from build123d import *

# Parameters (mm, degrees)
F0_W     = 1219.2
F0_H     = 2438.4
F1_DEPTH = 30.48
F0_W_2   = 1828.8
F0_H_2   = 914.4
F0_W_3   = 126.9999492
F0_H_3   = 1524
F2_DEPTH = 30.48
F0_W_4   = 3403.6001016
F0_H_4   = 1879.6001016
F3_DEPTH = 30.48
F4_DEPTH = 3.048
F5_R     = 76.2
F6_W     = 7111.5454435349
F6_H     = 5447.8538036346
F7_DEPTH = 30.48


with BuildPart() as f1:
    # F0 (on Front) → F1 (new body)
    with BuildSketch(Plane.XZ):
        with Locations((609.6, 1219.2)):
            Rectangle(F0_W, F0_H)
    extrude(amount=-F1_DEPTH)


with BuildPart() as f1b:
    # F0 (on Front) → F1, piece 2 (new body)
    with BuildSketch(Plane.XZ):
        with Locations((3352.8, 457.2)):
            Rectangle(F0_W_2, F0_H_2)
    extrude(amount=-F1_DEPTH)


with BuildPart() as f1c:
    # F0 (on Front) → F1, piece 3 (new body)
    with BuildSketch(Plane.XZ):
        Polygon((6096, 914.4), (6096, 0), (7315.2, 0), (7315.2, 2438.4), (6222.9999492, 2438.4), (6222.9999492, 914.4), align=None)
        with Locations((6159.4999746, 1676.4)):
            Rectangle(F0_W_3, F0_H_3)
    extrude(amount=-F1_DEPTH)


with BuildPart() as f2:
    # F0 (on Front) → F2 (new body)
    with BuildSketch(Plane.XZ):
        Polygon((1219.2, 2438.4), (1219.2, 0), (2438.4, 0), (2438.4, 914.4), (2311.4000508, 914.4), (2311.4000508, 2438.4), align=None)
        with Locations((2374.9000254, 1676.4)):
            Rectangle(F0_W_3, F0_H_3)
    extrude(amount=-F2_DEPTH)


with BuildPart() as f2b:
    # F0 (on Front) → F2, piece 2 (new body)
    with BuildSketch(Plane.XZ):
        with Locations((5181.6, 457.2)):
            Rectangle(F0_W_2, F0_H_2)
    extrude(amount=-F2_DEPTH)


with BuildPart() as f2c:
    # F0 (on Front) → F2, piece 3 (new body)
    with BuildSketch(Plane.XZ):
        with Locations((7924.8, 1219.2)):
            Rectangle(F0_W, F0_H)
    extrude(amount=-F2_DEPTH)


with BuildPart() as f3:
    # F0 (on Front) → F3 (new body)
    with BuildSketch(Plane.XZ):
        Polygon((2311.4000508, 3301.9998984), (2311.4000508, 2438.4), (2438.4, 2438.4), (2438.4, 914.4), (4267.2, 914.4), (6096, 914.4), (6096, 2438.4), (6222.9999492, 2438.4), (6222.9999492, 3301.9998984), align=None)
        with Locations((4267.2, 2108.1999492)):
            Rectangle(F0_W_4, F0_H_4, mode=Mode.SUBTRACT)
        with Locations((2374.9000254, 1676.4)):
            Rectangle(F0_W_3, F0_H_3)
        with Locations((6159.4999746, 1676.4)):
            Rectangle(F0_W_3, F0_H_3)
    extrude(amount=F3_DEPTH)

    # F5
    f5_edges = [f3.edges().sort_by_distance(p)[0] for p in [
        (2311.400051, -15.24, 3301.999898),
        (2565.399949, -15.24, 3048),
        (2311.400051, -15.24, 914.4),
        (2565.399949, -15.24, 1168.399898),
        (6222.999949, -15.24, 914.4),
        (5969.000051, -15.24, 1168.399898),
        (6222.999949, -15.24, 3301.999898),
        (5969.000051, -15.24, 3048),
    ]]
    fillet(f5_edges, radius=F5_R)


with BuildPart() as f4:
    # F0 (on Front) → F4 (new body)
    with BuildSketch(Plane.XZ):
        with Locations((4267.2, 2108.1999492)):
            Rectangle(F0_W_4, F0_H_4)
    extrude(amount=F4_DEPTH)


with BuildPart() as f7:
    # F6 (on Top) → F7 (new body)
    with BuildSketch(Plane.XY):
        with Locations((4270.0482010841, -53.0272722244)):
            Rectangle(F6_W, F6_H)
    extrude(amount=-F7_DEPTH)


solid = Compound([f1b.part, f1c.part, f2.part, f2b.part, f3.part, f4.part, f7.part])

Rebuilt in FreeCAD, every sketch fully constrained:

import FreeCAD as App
import Part
import Sketcher
Q = App.Units.Quantity


def edges_at(feature, points):
    """Names of the edges that pass closest to the given points."""
    edges = feature.Shape.Edges
    near = lambda p: min(range(len(edges)), key=lambda i: edges[i].distToShape(Part.Vertex(*p))[0])
    return sorted({f"Edge{near(p) + 1}" for p in points})

doc = App.newDocument("Part")
body = doc.addObject("PartDesign::Body", "Body")

# Sketch on XZ plane
sketch1 = doc.addObject("Sketcher::SketchObject", "Sketch")
body.addObject(sketch1)
sketch1.AttachmentSupport = (doc.XZ_Plane, [""])
sketch1.MapMode = "FlatFace"
sketch1.addGeometry(Part.LineSegment(App.Vector(0, 2438, 0), App.Vector(0, 0, 0)), False)
sketch1.addGeometry(Part.LineSegment(App.Vector(0, 0, 0), App.Vector(1219, 0, 0)), False)
sketch1.addGeometry(Part.LineSegment(App.Vector(1219, 0, 0), App.Vector(1219, 2438, 0)), False)
sketch1.addGeometry(Part.LineSegment(App.Vector(1219, 2438, 0), App.Vector(0, 2438, 0)), False)
sketch1.addConstraint(Sketcher.Constraint("Coincident", 0, 2, 1, 1))
sketch1.addConstraint(Sketcher.Constraint("Coincident", 1, 2, 2, 1))
sketch1.addConstraint(Sketcher.Constraint("Coincident", 2, 2, 3, 1))
sketch1.addConstraint(Sketcher.Constraint("Coincident", 3, 2, 0, 1))
sketch1.addConstraint(Sketcher.Constraint("Vertical", 0))
sketch1.addConstraint(Sketcher.Constraint("Horizontal", 1))
sketch1.addConstraint(Sketcher.Constraint("Vertical", 2))
sketch1.addConstraint(Sketcher.Constraint("Horizontal", 3))
sketch1.addConstraint(Sketcher.Constraint("Coincident", 0, 2, -1, 1))
sketch1.addConstraint(Sketcher.Constraint("DistanceX", 1, 1, 1, 2, Q("48 in")))
sketch1.addConstraint(Sketcher.Constraint("DistanceY", 0, 2, 0, 1, Q("96 in")))
pad1 = doc.addObject("PartDesign::Pad", "Pad")
body.addObject(pad1)
pad1.Profile = sketch1
pad1.Length = Q("1.2 in")
pad1.Reversed = True
body2 = doc.addObject("PartDesign::Body", "Body001")

# Sketch on XZ plane
sketch2 = doc.addObject("Sketcher::SketchObject", "Sketch001")
body2.addObject(sketch2)
sketch2.AttachmentSupport = (doc.getObject("XZ_Plane001"), [""])
sketch2.MapMode = "FlatFace"
sketch2.addGeometry(Part.LineSegment(App.Vector(2438, 914, 0), App.Vector(2438, 0, 0)), False)
sketch2.addGeometry(Part.LineSegment(App.Vector(2438, 0, 0), App.Vector(4267, 0, 0)), False)
sketch2.addGeometry(Part.LineSegment(App.Vector(4267, 0, 0), App.Vector(4267, 914, 0)), False)
sketch2.addGeometry(Part.LineSegment(App.Vector(4267, 914, 0), App.Vector(2438, 914, 0)), False)
sketch2.addConstraint(Sketcher.Constraint("Coincident", 0, 2, 1, 1))
sketch2.addConstraint(Sketcher.Constraint("Coincident", 1, 2, 2, 1))
sketch2.addConstraint(Sketcher.Constraint("Coincident", 2, 2, 3, 1))
sketch2.addConstraint(Sketcher.Constraint("Coincident", 3, 2, 0, 1))
sketch2.addConstraint(Sketcher.Constraint("Vertical", 0))
sketch2.addConstraint(Sketcher.Constraint("Horizontal", 1))
sketch2.addConstraint(Sketcher.Constraint("Vertical", 2))
sketch2.addConstraint(Sketcher.Constraint("Horizontal", 3))
sketch2.addConstraint(Sketcher.Constraint("PointOnObject", 0, 2, -1))
sketch2.addConstraint(Sketcher.Constraint("DistanceX", 1, 1, 1, 2, Q("72 in")))
sketch2.addConstraint(Sketcher.Constraint("DistanceY", 0, 2, 0, 1, Q("36 in")))
sketch2.addConstraint(Sketcher.Constraint("DistanceX", -1, 1, 0, 2, Q("96 in")))
pad2 = doc.addObject("PartDesign::Pad", "Pad001")
body2.addObject(pad2)
pad2.Profile = sketch2
pad2.Length = Q("1.2 in")
pad2.Reversed = True
body3 = doc.addObject("PartDesign::Body", "Body002")

# Sketch on XZ plane
sketch3 = doc.addObject("Sketcher::SketchObject", "Sketch002")
body3.addObject(sketch3)
sketch3.AttachmentSupport = (doc.getObject("XZ_Plane002"), [""])
sketch3.MapMode = "FlatFace"
sketch3.addGeometry(Part.LineSegment(App.Vector(6096, 0, 0), App.Vector(7315, 0, 0)), False)
sketch3.addGeometry(Part.LineSegment(App.Vector(7315, 0, 0), App.Vector(7315, 2438, 0)), False)
sketch3.addGeometry(Part.LineSegment(App.Vector(7315, 2438, 0), App.Vector(6096, 2438, 0)), False)
sketch3.addGeometry(Part.LineSegment(App.Vector(6096, 2438, 0), App.Vector(6096, 0, 0)), False)
sketch3.addConstraint(Sketcher.Constraint("Coincident", 0, 2, 1, 1))
sketch3.addConstraint(Sketcher.Constraint("Coincident", 1, 2, 2, 1))
sketch3.addConstraint(Sketcher.Constraint("Coincident", 2, 2, 3, 1))
sketch3.addConstraint(Sketcher.Constraint("Coincident", 3, 2, 0, 1))
sketch3.addConstraint(Sketcher.Constraint("Horizontal", 0))
sketch3.addConstraint(Sketcher.Constraint("Vertical", 1))
sketch3.addConstraint(Sketcher.Constraint("Horizontal", 2))
sketch3.addConstraint(Sketcher.Constraint("Vertical", 3))
sketch3.addConstraint(Sketcher.Constraint("PointOnObject", 0, 2, -1))
sketch3.addConstraint(Sketcher.Constraint("DistanceX", 0, 1, 0, 2, Q("48 in")))
sketch3.addConstraint(Sketcher.Constraint("DistanceY", 1, 1, 1, 2, Q("96 in")))
sketch3.addConstraint(Sketcher.Constraint("DistanceX", -1, 1, 0, 2, Q("288 in")))
pad3 = doc.addObject("PartDesign::Pad", "Pad002")
body3.addObject(pad3)
pad3.Profile = sketch3
pad3.Length = Q("1.2 in")
pad3.Reversed = True
body4 = doc.addObject("PartDesign::Body", "Body003")

# Sketch on XZ plane
sketch4 = doc.addObject("Sketcher::SketchObject", "Sketch003")
body4.addObject(sketch4)
sketch4.AttachmentSupport = (doc.getObject("XZ_Plane003"), [""])
sketch4.MapMode = "FlatFace"
sketch4.addGeometry(Part.LineSegment(App.Vector(1219, 2438, 0), App.Vector(1219, 0, 0)), False)
sketch4.addGeometry(Part.LineSegment(App.Vector(1219, 0, 0), App.Vector(2438, 0, 0)), False)
sketch4.addGeometry(Part.LineSegment(App.Vector(2438, 0, 0), App.Vector(2438, 2438, 0)), False)
sketch4.addGeometry(Part.LineSegment(App.Vector(2438, 2438, 0), App.Vector(1219, 2438, 0)), False)
sketch4.addConstraint(Sketcher.Constraint("Coincident", 0, 2, 1, 1))
sketch4.addConstraint(Sketcher.Constraint("Coincident", 1, 2, 2, 1))
sketch4.addConstraint(Sketcher.Constraint("Coincident", 2, 2, 3, 1))
sketch4.addConstraint(Sketcher.Constraint("Coincident", 3, 2, 0, 1))
sketch4.addConstraint(Sketcher.Constraint("Vertical", 0))
sketch4.addConstraint(Sketcher.Constraint("Horizontal", 1))
sketch4.addConstraint(Sketcher.Constraint("Vertical", 2))
sketch4.addConstraint(Sketcher.Constraint("Horizontal", 3))
sketch4.addConstraint(Sketcher.Constraint("PointOnObject", 0, 2, -1))
sketch4.addConstraint(Sketcher.Constraint("DistanceX", 1, 1, 1, 2, Q("48 in")))
sketch4.addConstraint(Sketcher.Constraint("DistanceY", 0, 2, 0, 1, Q("96 in")))
sketch4.addConstraint(Sketcher.Constraint("DistanceX", -1, 1, 0, 2, Q("48 in")))
pad4 = doc.addObject("PartDesign::Pad", "Pad003")
body4.addObject(pad4)
pad4.Profile = sketch4
pad4.Length = Q("1.2 in")
pad4.Reversed = True
body5 = doc.addObject("PartDesign::Body", "Body004")

# Sketch on XZ plane
sketch5 = doc.addObject("Sketcher::SketchObject", "Sketch004")
body5.addObject(sketch5)
sketch5.AttachmentSupport = (doc.getObject("XZ_Plane004"), [""])
sketch5.MapMode = "FlatFace"
sketch5.addGeometry(Part.LineSegment(App.Vector(4267, 914, 0), App.Vector(4267, 0, 0)), False)
sketch5.addGeometry(Part.LineSegment(App.Vector(4267, 0, 0), App.Vector(6096, 0, 0)), False)
sketch5.addGeometry(Part.LineSegment(App.Vector(6096, 0, 0), App.Vector(6096, 914, 0)), False)
sketch5.addGeometry(Part.LineSegment(App.Vector(6096, 914, 0), App.Vector(4267, 914, 0)), False)
sketch5.addConstraint(Sketcher.Constraint("Coincident", 0, 2, 1, 1))
sketch5.addConstraint(Sketcher.Constraint("Coincident", 1, 2, 2, 1))
sketch5.addConstraint(Sketcher.Constraint("Coincident", 2, 2, 3, 1))
sketch5.addConstraint(Sketcher.Constraint("Coincident", 3, 2, 0, 1))
sketch5.addConstraint(Sketcher.Constraint("Vertical", 0))
sketch5.addConstraint(Sketcher.Constraint("Horizontal", 1))
sketch5.addConstraint(Sketcher.Constraint("Vertical", 2))
sketch5.addConstraint(Sketcher.Constraint("Horizontal", 3))
sketch5.addConstraint(Sketcher.Constraint("PointOnObject", 0, 2, -1))
sketch5.addConstraint(Sketcher.Constraint("DistanceX", 1, 1, 1, 2, Q("72 in")))
sketch5.addConstraint(Sketcher.Constraint("DistanceY", 0, 2, 0, 1, Q("36 in")))
sketch5.addConstraint(Sketcher.Constraint("DistanceX", -1, 1, 0, 2, Q("168 in")))
pad5 = doc.addObject("PartDesign::Pad", "Pad004")
body5.addObject(pad5)
pad5.Profile = sketch5
pad5.Length = Q("1.2 in")
pad5.Reversed = True
body6 = doc.addObject("PartDesign::Body", "Body005")

# Sketch on XZ plane
sketch6 = doc.addObject("Sketcher::SketchObject", "Sketch005")
body6.addObject(sketch6)
sketch6.AttachmentSupport = (doc.getObject("XZ_Plane005"), [""])
sketch6.MapMode = "FlatFace"
sketch6.addGeometry(Part.LineSegment(App.Vector(7315, 2438, 0), App.Vector(7315, 0, 0)), False)
sketch6.addGeometry(Part.LineSegment(App.Vector(7315, 0, 0), App.Vector(8534, 0, 0)), False)
sketch6.addGeometry(Part.LineSegment(App.Vector(8534, 0, 0), App.Vector(8534, 2438, 0)), False)
sketch6.addGeometry(Part.LineSegment(App.Vector(8534, 2438, 0), App.Vector(7315, 2438, 0)), False)
sketch6.addConstraint(Sketcher.Constraint("Coincident", 0, 2, 1, 1))
sketch6.addConstraint(Sketcher.Constraint("Coincident", 1, 2, 2, 1))
sketch6.addConstraint(Sketcher.Constraint("Coincident", 2, 2, 3, 1))
sketch6.addConstraint(Sketcher.Constraint("Coincident", 3, 2, 0, 1))
sketch6.addConstraint(Sketcher.Constraint("Vertical", 0))
sketch6.addConstraint(Sketcher.Constraint("Horizontal", 1))
sketch6.addConstraint(Sketcher.Constraint("Vertical", 2))
sketch6.addConstraint(Sketcher.Constraint("Horizontal", 3))
sketch6.addConstraint(Sketcher.Constraint("PointOnObject", 0, 2, -1))
sketch6.addConstraint(Sketcher.Constraint("DistanceX", 1, 1, 1, 2, Q("48 in")))
sketch6.addConstraint(Sketcher.Constraint("DistanceY", 0, 2, 0, 1, Q("96 in")))
sketch6.addConstraint(Sketcher.Constraint("DistanceX", -1, 1, 0, 2, Q("288 in")))
pad6 = doc.addObject("PartDesign::Pad", "Pad005")
body6.addObject(pad6)
pad6.Profile = sketch6
pad6.Length = Q("1.2 in")
pad6.Reversed = True
body7 = doc.addObject("PartDesign::Body", "Body006")

# Sketch on XZ plane
sketch7 = doc.addObject("Sketcher::SketchObject", "Sketch006")
body7.addObject(sketch7)
sketch7.AttachmentSupport = (doc.getObject("XZ_Plane006"), [""])
sketch7.MapMode = "FlatFace"
sketch7.addGeometry(Part.LineSegment(App.Vector(2311, 3302, 0), App.Vector(2311, 914, 0)), False)
sketch7.addGeometry(Part.LineSegment(App.Vector(2311, 914, 0), App.Vector(6223, 914, 0)), False)
sketch7.addGeometry(Part.LineSegment(App.Vector(6223, 914, 0), App.Vector(6223, 3302, 0)), False)
sketch7.addGeometry(Part.LineSegment(App.Vector(6223, 3302, 0), App.Vector(2311, 3302, 0)), False)
sketch7.addGeometry(Part.LineSegment(App.Vector(5969, 1168, 0), App.Vector(2565, 1168, 0)), False)
sketch7.addGeometry(Part.LineSegment(App.Vector(2565, 1168, 0), App.Vector(2565, 3048, 0)), False)
sketch7.addGeometry(Part.LineSegment(App.Vector(2565, 3048, 0), App.Vector(5969, 3048, 0)), False)
sketch7.addGeometry(Part.LineSegment(App.Vector(5969, 3048, 0), App.Vector(5969, 1168, 0)), False)
sketch7.addConstraint(Sketcher.Constraint("Coincident", 0, 2, 1, 1))
sketch7.addConstraint(Sketcher.Constraint("Coincident", 1, 2, 2, 1))
sketch7.addConstraint(Sketcher.Constraint("Coincident", 2, 2, 3, 1))
sketch7.addConstraint(Sketcher.Constraint("Coincident", 3, 2, 0, 1))
sketch7.addConstraint(Sketcher.Constraint("Coincident", 4, 2, 5, 1))
sketch7.addConstraint(Sketcher.Constraint("Coincident", 5, 2, 6, 1))
sketch7.addConstraint(Sketcher.Constraint("Coincident", 6, 2, 7, 1))
sketch7.addConstraint(Sketcher.Constraint("Coincident", 7, 2, 4, 1))
sketch7.addConstraint(Sketcher.Constraint("Vertical", 0))
sketch7.addConstraint(Sketcher.Constraint("Horizontal", 1))
sketch7.addConstraint(Sketcher.Constraint("Vertical", 2))
sketch7.addConstraint(Sketcher.Constraint("Horizontal", 3))
sketch7.addConstraint(Sketcher.Constraint("Horizontal", 4))
sketch7.addConstraint(Sketcher.Constraint("Vertical", 5))
sketch7.addConstraint(Sketcher.Constraint("Horizontal", 6))
sketch7.addConstraint(Sketcher.Constraint("Vertical", 7))
sketch7.addConstraint(Sketcher.Constraint("DistanceY", -1, 1, 0, 2, Q("36 in")))
sketch7.addConstraint(Sketcher.Constraint("DistanceY", -1, 1, 5, 2, Q("120 in")))
sketch7.addConstraint(Sketcher.Constraint("DistanceY", 4, 2, 3, 2, Q("84 in")))
sketch7.addConstraint(Sketcher.Constraint("DistanceX", 4, 2, 1, 2, Q("144 in")))
sketch7.addConstraint(Sketcher.Constraint("DistanceX", 3, 2, 6, 2, Q("144 in")))
sketch7.addConstraint(Sketcher.Constraint("DistanceX", 1, 1, 1, 2, 3911.599898))
sketch7.addConstraint(Sketcher.Constraint("DistanceY", 0, 2, 0, 1, 2387.599898))
sketch7.addConstraint(Sketcher.Constraint("DistanceX", -1, 1, 0, 2, 2311.400051))
pad7 = doc.addObject("PartDesign::Pad", "Pad006")
body7.addObject(pad7)
pad7.Profile = sketch7
pad7.Length = Q("1.2 in")
doc.recompute()

fillet = doc.addObject("PartDesign::Fillet", "Fillet")
body7.addObject(fillet)
fillet.Base = (pad7, edges_at(pad7, [
    (2311.4, -15.24, 3302),
    (2565.4, -15.24, 3048),
    (2311.4, -15.24, 914.4),
    (2565.4, -15.24, 1168.4),
    (6223, -15.24, 914.4),
    (5969, -15.24, 1168.4),
    (6223, -15.24, 3302),
    (5969, -15.24, 3048),
]))
fillet.Radius = Q("3 in")
body8 = doc.addObject("PartDesign::Body", "Body007")

# Sketch on XZ plane
sketch8 = doc.addObject("Sketcher::SketchObject", "Sketch007")
body8.addObject(sketch8)
sketch8.AttachmentSupport = (doc.getObject("XZ_Plane007"), [""])
sketch8.MapMode = "FlatFace"
sketch8.addGeometry(Part.LineSegment(App.Vector(2565, 3048, 0), App.Vector(2565, 1168, 0)), False)
sketch8.addGeometry(Part.LineSegment(App.Vector(2565, 1168, 0), App.Vector(5969, 1168, 0)), False)
sketch8.addGeometry(Part.LineSegment(App.Vector(5969, 1168, 0), App.Vector(5969, 3048, 0)), False)
sketch8.addGeometry(Part.LineSegment(App.Vector(5969, 3048, 0), App.Vector(2565, 3048, 0)), False)
sketch8.addConstraint(Sketcher.Constraint("Coincident", 0, 2, 1, 1))
sketch8.addConstraint(Sketcher.Constraint("Coincident", 1, 2, 2, 1))
sketch8.addConstraint(Sketcher.Constraint("Coincident", 2, 2, 3, 1))
sketch8.addConstraint(Sketcher.Constraint("Coincident", 3, 2, 0, 1))
sketch8.addConstraint(Sketcher.Constraint("Vertical", 0))
sketch8.addConstraint(Sketcher.Constraint("Horizontal", 1))
sketch8.addConstraint(Sketcher.Constraint("Vertical", 2))
sketch8.addConstraint(Sketcher.Constraint("Horizontal", 3))
sketch8.addConstraint(Sketcher.Constraint("DistanceY", -1, 1, 2, 2, Q("120 in")))
sketch8.addConstraint(Sketcher.Constraint("DistanceX", 1, 1, 1, 2, 3403.600102))
sketch8.addConstraint(Sketcher.Constraint("DistanceY", 0, 2, 0, 1, 1879.600102))
sketch8.addConstraint(Sketcher.Constraint("DistanceX", -1, 1, 0, 2, 2565.399949))
pad8 = doc.addObject("PartDesign::Pad", "Pad007")
body8.addObject(pad8)
pad8.Profile = sketch8
pad8.Length = Q("0.12 in")
body9 = doc.addObject("PartDesign::Body", "Body008")

# Sketch on XY plane
sketch9 = doc.addObject("Sketcher::SketchObject", "Sketch008")
body9.addObject(sketch9)
sketch9.AttachmentSupport = (doc.getObject("XY_Plane008"), [""])
sketch9.MapMode = "FlatFace"
sketch9.addGeometry(Part.LineSegment(App.Vector(714, 2671, 0), App.Vector(714, -2777, 0)), False)
sketch9.addGeometry(Part.LineSegment(App.Vector(714, -2777, 0), App.Vector(7826, -2777, 0)), False)
sketch9.addGeometry(Part.LineSegment(App.Vector(7826, -2777, 0), App.Vector(7826, 2671, 0)), False)
sketch9.addGeometry(Part.LineSegment(App.Vector(7826, 2671, 0), App.Vector(714, 2671, 0)), False)
sketch9.addConstraint(Sketcher.Constraint("Coincident", 0, 2, 1, 1))
sketch9.addConstraint(Sketcher.Constraint("Coincident", 1, 2, 2, 1))
sketch9.addConstraint(Sketcher.Constraint("Coincident", 2, 2, 3, 1))
sketch9.addConstraint(Sketcher.Constraint("Coincident", 3, 2, 0, 1))
sketch9.addConstraint(Sketcher.Constraint("Vertical", 0))
sketch9.addConstraint(Sketcher.Constraint("Horizontal", 1))
sketch9.addConstraint(Sketcher.Constraint("Vertical", 2))
sketch9.addConstraint(Sketcher.Constraint("Horizontal", 3))
sketch9.addConstraint(Sketcher.Constraint("DistanceX", 1, 1, 1, 2, 7111.545444))
sketch9.addConstraint(Sketcher.Constraint("DistanceY", 0, 2, 0, 1, 5447.853804))
sketch9.addConstraint(Sketcher.Constraint("DistanceX", -1, 1, 0, 2, 714.275479))
sketch9.addConstraint(Sketcher.Constraint("DistanceY", -1, 1, 2, 2, 2670.89963))
pad9 = doc.addObject("PartDesign::Pad", "Pad008")
body9.addObject(pad9)
pad9.Profile = sketch9
pad9.Length = Q("1.2 in")
pad9.Reversed = True
body.Visibility = False
body6.Visibility = False

doc.recompute()
